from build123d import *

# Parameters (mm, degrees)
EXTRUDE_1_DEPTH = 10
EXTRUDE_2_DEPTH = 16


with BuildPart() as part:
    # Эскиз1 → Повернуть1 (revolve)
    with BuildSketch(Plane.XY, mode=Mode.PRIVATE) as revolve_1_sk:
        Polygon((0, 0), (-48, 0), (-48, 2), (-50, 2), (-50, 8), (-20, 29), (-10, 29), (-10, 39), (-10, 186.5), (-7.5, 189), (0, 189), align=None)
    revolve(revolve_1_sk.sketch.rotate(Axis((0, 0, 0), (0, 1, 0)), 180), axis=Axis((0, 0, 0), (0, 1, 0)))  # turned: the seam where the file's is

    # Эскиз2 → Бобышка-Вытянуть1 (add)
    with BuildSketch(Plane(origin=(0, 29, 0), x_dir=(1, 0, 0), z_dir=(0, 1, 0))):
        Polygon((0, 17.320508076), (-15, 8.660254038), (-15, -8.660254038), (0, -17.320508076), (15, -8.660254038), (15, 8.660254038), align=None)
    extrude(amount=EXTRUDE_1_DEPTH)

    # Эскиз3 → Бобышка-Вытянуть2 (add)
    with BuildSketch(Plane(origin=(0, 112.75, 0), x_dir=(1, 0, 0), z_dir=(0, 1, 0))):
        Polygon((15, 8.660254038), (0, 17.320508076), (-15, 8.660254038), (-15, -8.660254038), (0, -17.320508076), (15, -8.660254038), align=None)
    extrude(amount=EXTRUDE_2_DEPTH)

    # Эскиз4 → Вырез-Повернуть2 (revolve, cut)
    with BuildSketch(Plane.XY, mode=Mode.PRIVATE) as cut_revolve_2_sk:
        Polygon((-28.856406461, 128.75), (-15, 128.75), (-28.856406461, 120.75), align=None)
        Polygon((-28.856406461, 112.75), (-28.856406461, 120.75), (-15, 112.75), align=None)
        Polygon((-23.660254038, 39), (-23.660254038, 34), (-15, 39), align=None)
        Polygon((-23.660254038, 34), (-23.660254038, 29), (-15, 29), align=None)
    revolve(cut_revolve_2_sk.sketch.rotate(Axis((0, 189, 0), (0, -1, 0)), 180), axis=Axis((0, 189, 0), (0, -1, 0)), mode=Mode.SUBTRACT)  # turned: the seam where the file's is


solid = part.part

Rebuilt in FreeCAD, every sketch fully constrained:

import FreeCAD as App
import Part
import Sketcher
from FreeCAD import Vector
Q = App.Units.Quantity

doc = App.newDocument("Part")
body = doc.addObject("PartDesign::Body", "Body")

# Sketch on XY plane
sketch1 = body.newObject("Sketcher::SketchObject", "Sketch")
sketch1.AttachmentSupport = (doc.getObject("XY_Plane"), [""])
sketch1.MapMode = "FlatFace"
sketch1.addGeometry(Part.LineSegment(Vector(-48, 0, 0), Vector(0, 0, 0)), False)
sketch1.addGeometry(Part.LineSegment(Vector(0, 0, 0), Vector(0, 189, 0)), False)
sketch1.addGeometry(Part.LineSegment(Vector(0, 189, 0), Vector(-7.5, 189, 0)), False)
sketch1.addGeometry(Part.LineSegment(Vector(-7.5, 189, 0), Vector(-10, 186.5, 0)), False)
sketch1.addGeometry(Part.LineSegment(Vector(-10, 186.5, 0), Vector(-10, 29, 0)), False)
sketch1.addGeometry(Part.LineSegment(Vector(-10, 29, 0), Vector(-20, 29, 0)), False)
sketch1.addGeometry(Part.LineSegment(Vector(-20, 29, 0), Vector(-50, 8, 0)), False)
sketch1.addGeometry(Part.LineSegment(Vector(-50, 8, 0), Vector(-50, 2, 0)), False)
sketch1.addGeometry(Part.LineSegment(Vector(-50, 2, 0), Vector(-48, 2, 0)), False)
sketch1.addGeometry(Part.LineSegment(Vector(-48, 2, 0), Vector(-48, 0, 0)), False)
sketch1.addConstraint(Sketcher.Constraint("Coincident", 0, 2, 1, 1))
sketch1.addConstraint(Sketcher.Constraint("Coincident", 1, 2, 2, 1))
sketch1.addConstraint(Sketcher.Constraint("Coincident", 2, 2, 3, 1))
sketch1.addConstraint(Sketcher.Constraint("Coincident", 3, 2, 4, 1))
sketch1.addConstraint(Sketcher.Constraint("Coincident", 4, 2, 5, 1))
sketch1.addConstraint(Sketcher.Constraint("Coincident", 5, 2, 6, 1))
sketch1.addConstraint(Sketcher.Constraint("Coincident", 6, 2, 7, 1))
sketch1.addConstraint(Sketcher.Constraint("Coincident", 7, 2, 8, 1))
sketch1.addConstraint(Sketcher.Constraint("Coincident", 8, 2, 9, 1))
sketch1.addConstraint(Sketcher.Constraint("Coincident", 9, 2, 0, 1))
sketch1.addConstraint(Sketcher.Constraint("Horizontal", 0))
sketch1.addConstraint(Sketcher.Constraint("Vertical", 1))
sketch1.addConstraint(Sketcher.Constraint("Horizontal", 2))
sketch1.addConstraint(Sketcher.Constraint("Vertical", 4))
sketch1.addConstraint(Sketcher.Constraint("Horizontal", 5))
sketch1.addConstraint(Sketcher.Constraint("Vertical", 7))
sketch1.addConstraint(Sketcher.Constraint("Horizontal", 8))
sketch1.addConstraint(Sketcher.Constraint("Vertical", 9))
sketch1.addConstraint(Sketcher.Constraint("Coincident", 0, 2, -1, 1))
sketch1.addConstraint(Sketcher.Constraint("Equal", 8, 9))
sketch1.addConstraint(Sketcher.Constraint("DistanceX", 0, 1, 0, 2, Q("48 mm")))
sketch1.addConstraint(Sketcher.Constraint("DistanceX", 5, 2, 5, 1, Q("10 mm")))
sketch1.addConstraint(Sketcher.Constraint("DistanceX", 8, 1, 8, 2, Q("2 mm")))
sketch1.addConstraint(Sketcher.Constraint("DistanceY", 1, 1, 1, 2, Q("189 mm")))
sketch1.addConstraint(Sketcher.Constraint("DistanceY", 7, 2, 7, 1, Q("6 mm")))
sketch1.addConstraint(Sketcher.Constraint("Angle", 3, Q("-135 deg")))
sketch1.addConstraint(Sketcher.Constraint("DistanceX", 2, 2, 2, 1, Q("7.5 mm")))
sketch1.addConstraint(Sketcher.Constraint("DistanceY", 4, 2, 4, 1, Q("157.5 mm")))
sketch1.addConstraint(Sketcher.Constraint("DistanceX", 3, 2, -1, 1, Q("10 mm")))
revolution = body.newObject("PartDesign::Revolution", "Revolution")
revolution.Profile = sketch1
revolution.ReferenceAxis = (sketch1, ["V_Axis"])
revolution.Angle = 360

# Sketch on XZ plane
sketch2 = body.newObject("Sketcher::SketchObject", "Sketch001")
sketch2.AttachmentSupport = (doc.getObject("XZ_Plane"), [""])
sketch2.MapMode = "FlatFace"
sketch2.AttachmentOffset = App.Placement(Vector(0, 0, -29), App.Rotation())
sketch2.addGeometry(Part.LineSegment(Vector(0, -17, 0), Vector(-15, -9, 0)), False)
sketch2.addGeometry(Part.LineSegment(Vector(-15, -9, 0), Vector(-15, 9, 0)), False)
sketch2.addGeometry(Part.LineSegment(Vector(-15, 9, 0), Vector(0, 17, 0)), False)
sketch2.addGeometry(Part.LineSegment(Vector(0, 17, 0), Vector(15, 9, 0)), False)
sketch2.addGeometry(Part.LineSegment(Vector(15, 9, 0), Vector(15, -9, 0)), False)
sketch2.addGeometry(Part.LineSegment(Vector(15, -9, 0), Vector(0, -17, 0)), False)
sketch2.addConstraint(Sketcher.Constraint("Coincident", 0, 2, 1, 1))
sketch2.addConstraint(Sketcher.Constraint("Coincident", 1, 2, 2, 1))
sketch2.addConstraint(Sketcher.Constraint("Coincident", 2, 2, 3, 1))
sketch2.addConstraint(Sketcher.Constraint("Coincident", 3, 2, 4, 1))
sketch2.addConstraint(Sketcher.Constraint("Coincident", 4, 2, 5, 1))
sketch2.addConstraint(Sketcher.Constraint("Coincident", 5, 2, 0, 1))
sketch2.addConstraint(Sketcher.Constraint("Vertical", 1))
sketch2.addConstraint(Sketcher.Constraint("Vertical", 4))
sketch2.addConstraint(Sketcher.Constraint("Symmetric", 0, 2, 3, 2, -1, 1))
sketch2.addConstraint(Sketcher.Constraint("Symmetric", 2, 2, 5, 2, -1, 1))
sketch2.addConstraint(Sketcher.Constraint("PointOnObject", 2, 2, -2))
sketch2.addConstraint(Sketcher.Constraint("Parallel", 2, 5))
sketch2.addConstraint(Sketcher.Constraint("Horizontal", 1, 2, 3, 2))
sketch2.addConstraint(Sketcher.Constraint("Angle", 0, Q("150 deg")))
sketch2.addConstraint(Sketcher.Constraint("DistanceX", 0, 2, -1, 1, Q("15 mm")))
sketch2.addConstraint(Sketcher.Constraint("DistanceY", 1, 1, 1, 2, Q("17.320508 mm")))
pad1 = body.newObject("PartDesign::Pad", "Pad")
pad1.Profile = sketch2
pad1.Length = 10
pad1.Reversed = True

# Sketch on XZ plane
sketch3 = body.newObject("Sketcher::SketchObject", "Sketch002")
sketch3.AttachmentSupport = (doc.getObject("XZ_Plane"), [""])
sketch3.MapMode = "FlatFace"
sketch3.AttachmentOffset = App.Placement(Vector(0, 0, -112.75), App.Rotation())
sketch3.addGeometry(Part.LineSegment(Vector(15, -9, 0), Vector(0, -17, 0)), False)
sketch3.addGeometry(Part.LineSegment(Vector(0, -17, 0), Vector(-15, -9, 0)), False)
sketch3.addGeometry(Part.LineSegment(Vector(-15, -9, 0), Vector(-15, 9, 0)), False)
sketch3.addGeometry(Part.LineSegment(Vector(-15, 9, 0), Vector(0, 17, 0)), False)
sketch3.addGeometry(Part.LineSegment(Vector(0, 17, 0), Vector(15, 9, 0)), False)
sketch3.addGeometry(Part.LineSegment(Vector(15, 9, 0), Vector(15, -9, 0)), False)
sketch3.addConstraint(Sketcher.Constraint("Coincident", 0, 2, 1, 1))
sketch3.addConstraint(Sketcher.Constraint("Coincident", 1, 2, 2, 1))
sketch3.addConstraint(Sketcher.Constraint("Coincident", 2, 2, 3, 1))
sketch3.addConstraint(Sketcher.Constraint("Coincident", 3, 2, 4, 1))
sketch3.addConstraint(Sketcher.Constraint("Coincident", 4, 2, 5, 1))
sketch3.addConstraint(Sketcher.Constraint("Coincident", 5, 2, 0, 1))
sketch3.addConstraint(Sketcher.Constraint("Vertical", 2))
sketch3.addConstraint(Sketcher.Constraint("Vertical", 5))
sketch3.addConstraint(Sketcher.Constraint("Symmetric", 0, 2, 3, 2, -1, 1))
sketch3.addConstraint(Sketcher.Constraint("Symmetric", 1, 2, 4, 2, -1, 1))
sketch3.addConstraint(Sketcher.Constraint("PointOnObject", 0, 2, -2))
sketch3.addConstraint(Sketcher.Constraint("Parallel", 0, 3))
sketch3.addConstraint(Sketcher.Constraint("Horizontal", 2, 2, 4, 2))
sketch3.addConstraint(Sketcher.Constraint("Angle", 0, Q("-150 deg")))
sketch3.addConstraint(Sketcher.Constraint("DistanceX", 1, 2, -1, 1, Q("15 mm")))
sketch3.addConstraint(Sketcher.Constraint("DistanceY", 2, 1, 2, 2, Q("17.320508 mm")))
pad2 = body.newObject("PartDesign::Pad", "Pad001")
pad2.Profile = sketch3
pad2.Length = 16
pad2.Reversed = True

# Sketch on XY plane
sketch4 = body.newObject("Sketcher::SketchObject", "Sketch003")
sketch4.AttachmentSupport = (doc.getObject("XY_Plane"), [""])
sketch4.MapMode = "FlatFace"
sketch4.addGeometry(Part.LineSegment(Vector(-15, 129, 0), Vector(-29, 129, 0)), False)
sketch4.addGeometry(Part.LineSegment(Vector(-29, 129, 0), Vector(-29, 121, 0)), False)
sketch4.addGeometry(Part.LineSegment(Vector(-29, 121, 0), Vector(-15, 129, 0)), False)
sketch4.addGeometry(Part.LineSegment(Vector(-29, 121, 0), Vector(-29, 113, 0)), False)
sketch4.addGeometry(Part.LineSegment(Vector(-29, 113, 0), Vector(-15, 113, 0)), False)
sketch4.addGeometry(Part.LineSegment(Vector(-15, 113, 0), Vector(-29, 121, 0)), False)
sketch4.addGeometry(Part.LineSegment(Vector(-24, 39, 0), Vector(-24, 34, 0)), False)
sketch4.addGeometry(Part.LineSegment(Vector(-24, 34, 0), Vector(-15, 39, 0)), False)
sketch4.addGeometry(Part.LineSegment(Vector(-15, 39, 0), Vector(-24, 39, 0)), False)
sketch4.addGeometry(Part.LineSegment(Vector(-24, 34, 0), Vector(-24, 29, 0)), False)
sketch4.addGeometry(Part.LineSegment(Vector(-24, 29, 0), Vector(-15, 29, 0)), False)
sketch4.addGeometry(Part.LineSegment(Vector(-15, 29, 0), Vector(-24, 34, 0)), False)
sketch4.addConstraint(Sketcher.Constraint("Coincident", 0, 2, 1, 1))
sketch4.addConstraint(Sketcher.Constraint("Coincident", 1, 2, 2, 1))
sketch4.addConstraint(Sketcher.Constraint("Coincident", 2, 2, 0, 1))
sketch4.addConstraint(Sketcher.Constraint("Coincident", 3, 2, 4, 1))
sketch4.addConstraint(Sketcher.Constraint("Coincident", 4, 2, 5, 1))
sketch4.addConstraint(Sketcher.Constraint("Coincident", 5, 2, 3, 1))
sketch4.addConstraint(Sketcher.Constraint("Coincident", 6, 2, 7, 1))
sketch4.addConstraint(Sketcher.Constraint("Coincident", 7, 2, 8, 1))
sketch4.addConstraint(Sketcher.Constraint("Coincident", 8, 2, 6, 1))
sketch4.addConstraint(Sketcher.Constraint("Coincident", 9, 2, 10, 1))
sketch4.addConstraint(Sketcher.Constraint("Coincident", 10, 2, 11, 1))
sketch4.addConstraint(Sketcher.Constraint("Coincident", 11, 2, 9, 1))
sketch4.addConstraint(Sketcher.Constraint("Horizontal", 0))
sketch4.addConstraint(Sketcher.Constraint("Vertical", 1))
sketch4.addConstraint(Sketcher.Constraint("Vertical", 3))
sketch4.addConstraint(Sketcher.Constraint("Horizontal", 4))
sketch4.addConstraint(Sketcher.Constraint("Vertical", 6))
sketch4.addConstraint(Sketcher.Constraint("Horizontal", 8))
sketch4.addConstraint(Sketcher.Constraint("Vertical", 9))
sketch4.addConstraint(Sketcher.Constraint("Horizontal", 10))
sketch4.addConstraint(Sketcher.Constraint("Coincident", 5, 2, 1, 2))
sketch4.addConstraint(Sketcher.Constraint("Coincident", 11, 2, 6, 2))
sketch4.addConstraint(Sketcher.Constraint("Parallel", 2, 7))
sketch4.addConstraint(Sketcher.Constraint("Parallel", 5, 11))
sketch4.addConstraint(Sketcher.Constraint("Vertical", 2, 2, 4, 2))
sketch4.addConstraint(Sketcher.Constraint("Vertical", 4, 2, 7, 2))
sketch4.addConstraint(Sketcher.Constraint("Vertical", 7, 2, 10, 2))
sketch4.addConstraint(Sketcher.Constraint("Equal", 1, 3))
sketch4.addConstraint(Sketcher.Constraint("DistanceY", 1, 2, 1, 1, Q("8 mm")))
sketch4.addConstraint(Sketcher.Constraint("DistanceY", 6, 2, 6, 1, Q("5 mm")))
sketch4.addConstraint(Sketcher.Constraint("Angle", 2, Q("30 deg")))
sketch4.addConstraint(Sketcher.Constraint("DistanceX", 2, 2, -1, 1, Q("15 mm")))
sketch4.addConstraint(Sketcher.Constraint("DistanceY", -1, 1, 6, 2, Q("34 mm")))
sketch4.addConstraint(Sketcher.Constraint("DistanceY", -1, 1, 0, 2, Q("128.75 mm")))
groove = body.newObject("PartDesign::Groove", "Groove")
groove.Profile = sketch4
groove.ReferenceAxis = (sketch4, ["V_Axis"])
groove.Angle = 360

doc.recompute()
